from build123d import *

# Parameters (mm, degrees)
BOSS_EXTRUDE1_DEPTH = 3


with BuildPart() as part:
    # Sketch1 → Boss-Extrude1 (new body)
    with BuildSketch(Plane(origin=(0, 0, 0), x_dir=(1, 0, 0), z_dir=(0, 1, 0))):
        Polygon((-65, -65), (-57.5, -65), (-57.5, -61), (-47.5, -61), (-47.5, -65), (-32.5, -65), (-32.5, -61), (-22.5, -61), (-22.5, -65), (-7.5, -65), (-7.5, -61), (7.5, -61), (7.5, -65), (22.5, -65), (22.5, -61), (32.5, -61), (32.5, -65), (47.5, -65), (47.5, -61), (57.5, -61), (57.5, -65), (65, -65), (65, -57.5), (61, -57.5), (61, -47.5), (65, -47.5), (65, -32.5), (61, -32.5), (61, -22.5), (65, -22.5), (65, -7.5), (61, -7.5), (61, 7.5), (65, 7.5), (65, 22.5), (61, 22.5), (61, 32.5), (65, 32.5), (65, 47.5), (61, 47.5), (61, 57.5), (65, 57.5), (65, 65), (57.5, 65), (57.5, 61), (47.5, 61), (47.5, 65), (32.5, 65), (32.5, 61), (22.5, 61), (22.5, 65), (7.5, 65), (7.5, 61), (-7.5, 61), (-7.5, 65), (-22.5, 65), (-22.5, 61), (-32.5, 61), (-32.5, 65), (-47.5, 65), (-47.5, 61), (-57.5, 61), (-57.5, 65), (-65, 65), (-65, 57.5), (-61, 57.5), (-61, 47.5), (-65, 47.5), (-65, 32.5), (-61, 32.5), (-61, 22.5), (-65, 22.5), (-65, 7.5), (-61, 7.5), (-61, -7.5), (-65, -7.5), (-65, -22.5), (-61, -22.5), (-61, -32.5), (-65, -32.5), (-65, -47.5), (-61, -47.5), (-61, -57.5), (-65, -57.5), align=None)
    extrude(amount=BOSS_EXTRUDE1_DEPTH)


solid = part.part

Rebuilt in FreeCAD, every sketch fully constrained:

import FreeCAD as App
import Part
import Sketcher

doc = App.newDocument("Part")
body = doc.addObject("PartDesign::Body", "Body")

sketch1 = doc.addObject("Sketcher::SketchObject", "Sketch")
body.addObject(sketch1)
sketch1.AttachmentSupport = (doc.XZ_Plane, [""])
sketch1.MapMode = "FlatFace"
sketch1.addGeometry(Part.LineSegment(App.Vector(-65, 65, 0), App.Vector(-57.5, 65, 0)), False)
sketch1.addGeometry(Part.LineSegment(App.Vector(-57.5, 65, 0), App.Vector(-57.5, 61, 0)), False)
sketch1.addGeometry(Part.LineSegment(App.Vector(-57.5, 61, 0), App.Vector(-47.5, 61, 0)), False)
sketch1.addGeometry(Part.LineSegment(App.Vector(-47.5, 61, 0), App.Vector(-47.5, 65, 0)), False)
sketch1.addGeometry(Part.LineSegment(App.Vector(-47.5, 65, 0), App.Vector(-32.5, 65, 0)), False)
sketch1.addGeometry(Part.LineSegment(App.Vector(-32.5, 65, 0), App.Vector(-32.5, 61, 0)), False)
sketch1.addGeometry(Part.LineSegment(App.Vector(-32.5, 61, 0), App.Vector(-22.5, 61, 0)), False)
sketch1.addGeometry(Part.LineSegment(App.Vector(-22.5, 61, 0), App.Vector(-22.5, 65, 0)), False)
sketch1.addGeometry(Part.LineSegment(App.Vector(-22.5, 65, 0), App.Vector(-7.5, 65, 0)), False)
sketch1.addGeometry(Part.LineSegment(App.Vector(-7.5, 65, 0), App.Vector(-7.5, 61, 0)), False)
sketch1.addGeometry(Part.LineSegment(App.Vector(-7.5, 61, 0), App.Vector(7.5, 61, 0)), False)
sketch1.addGeometry(Part.LineSegment(App.Vector(7.5, 61, 0), App.Vector(7.5, 65, 0)), False)
sketch1.addGeometry(Part.LineSegment(App.Vector(7.5, 65, 0), App.Vector(22.5, 65, 0)), False)
sketch1.addGeometry(Part.LineSegment(App.Vector(22.5, 65, 0), App.Vector(22.5, 61, 0)), False)
sketch1.addGeometry(Part.LineSegment(App.Vector(22.5, 61, 0), App.Vector(32.5, 61, 0)), False)
sketch1.addGeometry(Part.LineSegment(App.Vector(32.5, 61, 0), App.Vector(32.5, 65, 0)), False)
sketch1.addGeometry(Part.LineSegment(App.Vector(32.5, 65, 0), App.Vector(47.5, 65, 0)), False)
sketch1.addGeometry(Part.LineSegment(App.Vector(47.5, 65, 0), App.Vector(47.5, 61, 0)), False)
sketch1.addGeometry(Part.LineSegment(App.Vector(47.5, 61, 0), App.Vector(57.5, 61, 0)), False)
sketch1.addGeometry(Part.LineSegment(App.Vector(57.5, 61, 0), App.Vector(57.5, 65, 0)), False)
sketch1.addGeometry(Part.LineSegment(App.Vector(57.5, 65, 0), App.Vector(65, 65, 0)), False)
sketch1.addGeometry(Part.LineSegment(App.Vector(65, 65, 0), App.Vector(65, 57.5, 0)), False)
sketch1.addGeometry(Part.LineSegment(App.Vector(65, 57.5, 0), App.Vector(61, 57.5, 0)), False)
sketch1.addGeometry(Part.LineSegment(App.Vector(61, 57.5, 0), App.Vector(61, 47.5, 0)), False)
sketch1.addGeometry(Part.LineSegment(App.Vector(61, 47.5, 0), App.Vector(65, 47.5, 0)), False)
sketch1.addGeometry(Part.LineSegment(App.Vector(65, 47.5, 0), App.Vector(65, 32.5, 0)), False)
sketch1.addGeometry(Part.LineSegment(App.Vector(65, 32.5, 0), App.Vector(61, 32.5, 0)), False)
sketch1.addGeometry(Part.LineSegment(App.Vector(61, 32.5, 0), App.Vector(61, 22.5, 0)), False)
sketch1.addGeometry(Part.LineSegment(App.Vector(61, 22.5, 0), App.Vector(65, 22.5, 0)), False)
sketch1.addGeometry(Part.LineSegment(App.Vector(65, 22.5, 0), App.Vector(65, 7.5, 0)), False)
sketch1.addGeometry(Part.LineSegment(App.Vector(65, 7.5, 0), App.Vector(61, 7.5, 0)), False)
sketch1.addGeometry(Part.LineSegment(App.Vector(61, 7.5, 0), App.Vector(61, -7.5, 0)), False)
sketch1.addGeometry(Part.LineSegment(App.Vector(61, -7.5, 0), App.Vector(65, -7.5, 0)), False)
sketch1.addGeometry(Part.LineSegment(App.Vector(65, -7.5, 0), App.Vector(65, -22.5, 0)), False)
sketch1.addGeometry(Part.LineSegment(App.Vector(65, -22.5, 0), App.Vector(61, -22.5, 0)), False)
sketch1.addGeometry(Part.LineSegment(App.Vector(61, -22.5, 0), App.Vector(61, -32.5, 0)), False)
sketch1.addGeometry(Part.LineSegment(App.Vector(61, -32.5, 0), App.Vector(65, -32.5, 0)), False)
sketch1.addGeometry(Part.LineSegment(App.Vector(65, -32.5, 0), App.Vector(65, -47.5, 0)), False)
sketch1.addGeometry(Part.LineSegment(App.Vector(65, -47.5, 0), App.Vector(61, -47.5, 0)), False)
sketch1.addGeometry(Part.LineSegment(App.Vector(61, -47.5, 0), App.Vector(61, -57.5, 0)), False)
sketch1.addGeometry(Part.LineSegment(App.Vector(61, -57.5, 0), App.Vector(65, -57.5, 0)), False)
sketch1.addGeometry(Part.LineSegment(App.Vector(65, -57.5, 0), App.Vector(65, -65, 0)), False)
sketch1.addGeometry(Part.LineSegment(App.Vector(65, -65, 0), App.Vector(57.5, -65, 0)), False)
sketch1.addGeometry(Part.LineSegment(App.Vector(57.5, -65, 0), App.Vector(57.5, -61, 0)), False)
sketch1.addGeometry(Part.LineSegment(App.Vector(57.5, -61, 0), App.Vector(47.5, -61, 0)), False)
sketch1.addGeometry(Part.LineSegment(App.Vector(47.5, -61, 0), App.Vector(47.5, -65, 0)), False)
sketch1.addGeometry(Part.LineSegment(App.Vector(47.5, -65, 0), App.Vector(32.5, -65, 0)), False)
sketch1.addGeometry(Part.LineSegment(App.Vector(32.5, -65, 0), App.Vector(32.5, -61, 0)), False)
sketch1.addGeometry(Part.LineSegment(App.Vector(32.5, -61, 0), App.Vector(22.5, -61, 0)), False)
sketch1.addGeometry(Part.LineSegment(App.Vector(22.5, -61, 0), App.Vector(22.5, -65, 0)), False)
sketch1.addGeometry(Part.LineSegment(App.Vector(22.5, -65, 0), App.Vector(7.5, -65, 0)), False)
sketch1.addGeometry(Part.LineSegment(App.Vector(7.5, -65, 0), App.Vector(7.5, -61, 0)), False)
sketch1.addGeometry(Part.LineSegment(App.Vector(7.5, -61, 0), App.Vector(-7.5, -61, 0)), False)
sketch1.addGeometry(Part.LineSegment(App.Vector(-7.5, -61, 0), App.Vector(-7.5, -65, 0)), False)
sketch1.addGeometry(Part.LineSegment(App.Vector(-7.5, -65, 0), App.Vector(-22.5, -65, 0)), False)
sketch1.addGeometry(Part.LineSegment(App.Vector(-22.5, -65, 0), App.Vector(-22.5, -61, 0)), False)
sketch1.addGeometry(Part.LineSegment(App.Vector(-22.5, -61, 0), App.Vector(-32.5, -61, 0)), False)
sketch1.addGeometry(Part.LineSegment(App.Vector(-32.5, -61, 0), App.Vector(-32.5, -65, 0)), False)
sketch1.addGeometry(Part.LineSegment(App.Vector(-32.5, -65, 0), App.Vector(-47.5, -65, 0)), False)
sketch1.addGeometry(Part.LineSegment(App.Vector(-47.5, -65, 0), App.Vector(-47.5, -61, 0)), False)
sketch1.addGeometry(Part.LineSegment(App.Vector(-47.5, -61, 0), App.Vector(-57.5, -61, 0)), False)
sketch1.addGeometry(Part.LineSegment(App.Vector(-57.5, -61, 0), App.Vector(-57.5, -65, 0)), False)
sketch1.addGeometry(Part.LineSegment(App.Vector(-57.5, -65, 0), App.Vector(-65, -65, 0)), False)
sketch1.addGeometry(Part.LineSegment(App.Vector(-65, -65, 0), App.Vector(-65, -57.5, 0)), False)
sketch1.addGeometry(Part.LineSegment(App.Vector(-65, -57.5, 0), App.Vector(-61, -57.5, 0)), False)
sketch1.addGeometry(Part.LineSegment(App.Vector(-61, -57.5, 0), App.Vector(-61, -47.5, 0)), False)
sketch1.addGeometry(Part.LineSegment(App.Vector(-61, -47.5, 0), App.Vector(-65, -47.5, 0)), False)
sketch1.addGeometry(Part.LineSegment(App.Vector(-65, -47.5, 0), App.Vector(-65, -32.5, 0)), False)
sketch1.addGeometry(Part.LineSegment(App.Vector(-65, -32.5, 0), App.Vector(-61, -32.5, 0)), False)
sketch1.addGeometry(Part.LineSegment(App.Vector(-61, -32.5, 0), App.Vector(-61, -22.5, 0)), False)
sketch1.addGeometry(Part.LineSegment(App.Vector(-61, -22.5, 0), App.Vector(-65, -22.5, 0)), False)
sketch1.addGeometry(Part.LineSegment(App.Vector(-65, -22.5, 0), App.Vector(-65, -7.5, 0)), False)
sketch1.addGeometry(Part.LineSegment(App.Vector(-65, -7.5, 0), App.Vector(-61, -7.5, 0)), False)
sketch1.addGeometry(Part.LineSegment(App.Vector(-61, -7.5, 0), App.Vector(-61, 7.5, 0)), False)
sketch1.addGeometry(Part.LineSegment(App.Vector(-61, 7.5, 0), App.Vector(-65, 7.5, 0)), False)
sketch1.addGeometry(Part.LineSegment(App.Vector(-65, 7.5, 0), App.Vector(-65, 22.5, 0)), False)
sketch1.addGeometry(Part.LineSegment(App.Vector(-65, 22.5, 0), App.Vector(-61, 22.5, 0)), False)
sketch1.addGeometry(Part.LineSegment(App.Vector(-61, 22.5, 0), App.Vector(-61, 32.5, 0)), False)
sketch1.addGeometry(Part.LineSegment(App.Vector(-61, 32.5, 0), App.Vector(-65, 32.5, 0)), False)
sketch1.addGeometry(Part.LineSegment(App.Vector(-65, 32.5, 0), App.Vector(-65, 47.5, 0)), False)
sketch1.addGeometry(Part.LineSegment(App.Vector(-65, 47.5, 0), App.Vector(-61, 47.5, 0)), False)
sketch1.addGeometry(Part.LineSegment(App.Vector(-61, 47.5, 0), App.Vector(-61, 57.5, 0)), False)
sketch1.addGeometry(Part.LineSegment(App.Vector(-61, 57.5, 0), App.Vector(-65, 57.5, 0)), False)
sketch1.addGeometry(Part.LineSegment(App.Vector(-65, 57.5, 0), App.Vector(-65, 65, 0)), False)
sketch1.addConstraint(Sketcher.Constraint("Coincident", 0, 2, 1, 1))
sketch1.addConstraint(Sketcher.Constraint("Coincident", 1, 2, 2, 1))
sketch1.addConstraint(Sketcher.Constraint("Coincident", 2, 2, 3, 1))
sketch1.addConstraint(Sketcher.Constraint("Coincident", 3, 2, 4, 1))
sketch1.addConstraint(Sketcher.Constraint("Coincident", 4, 2, 5, 1))
sketch1.addConstraint(Sketcher.Constraint("Coincident", 5, 2, 6, 1))
sketch1.addConstraint(Sketcher.Constraint("Coincident", 6, 2, 7, 1))
sketch1.addConstraint(Sketcher.Constraint("Coincident", 7, 2, 8, 1))
sketch1.addConstraint(Sketcher.Constraint("Coincident", 8, 2, 9, 1))
sketch1.addConstraint(Sketcher.Constraint("Coincident", 9, 2, 10, 1))
sketch1.addConstraint(Sketcher.Constraint("Coincident", 10, 2, 11, 1))
sketch1.addConstraint(Sketcher.Constraint("Coincident", 11, 2, 12, 1))
sketch1.addConstraint(Sketcher.Constraint("Coincident", 12, 2, 13, 1))
sketch1.addConstraint(Sketcher.Constraint("Coincident", 13, 2, 14, 1))
sketch1.addConstraint(Sketcher.Constraint("Coincident", 14, 2, 15, 1))
sketch1.addConstraint(Sketcher.Constraint("Coincident", 15, 2, 16, 1))
sketch1.addConstraint(Sketcher.Constraint("Coincident", 16, 2, 17, 1))
sketch1.addConstraint(Sketcher.Constraint("Coincident", 17, 2, 18, 1))
sketch1.addConstraint(Sketcher.Constraint("Coincident", 18, 2, 19, 1))
sketch1.addConstraint(Sketcher.Constraint("Coincident", 19, 2, 20, 1))
sketch1.addConstraint(Sketcher.Constraint("Coincident", 20, 2, 21, 1))
sketch1.addConstraint(Sketcher.Constraint("Coincident", 21, 2, 22, 1))
sketch1.addConstraint(Sketcher.Constraint("Coincident", 22, 2, 23, 1))
sketch1.addConstraint(Sketcher.Constraint("Coincident", 23, 2, 24, 1))
sketch1.addConstraint(Sketcher.Constraint("Coincident", 24, 2, 25, 1))
sketch1.addConstraint(Sketcher.Constraint("Coincident", 25, 2, 26, 1))
sketch1.addConstraint(Sketcher.Constraint("Coincident", 26, 2, 27, 1))
sketch1.addConstraint(Sketcher.Constraint("Coincident", 27, 2, 28, 1))
sketch1.addConstraint(Sketcher.Constraint("Coincident", 28, 2, 29, 1))
sketch1.addConstraint(Sketcher.Constraint("Coincident", 29, 2, 30, 1))
sketch1.addConstraint(Sketcher.Constraint("Coincident", 30, 2, 31, 1))
sketch1.addConstraint(Sketcher.Constraint("Coincident", 31, 2, 32, 1))
sketch1.addConstraint(Sketcher.Constraint("Coincident", 32, 2, 33, 1))
sketch1.addConstraint(Sketcher.Constraint("Coincident", 33, 2, 34, 1))
sketch1.addConstraint(Sketcher.Constraint("Coincident", 34, 2, 35, 1))
sketch1.addConstraint(Sketcher.Constraint("Coincident", 35, 2, 36, 1))
sketch1.addConstraint(Sketcher.Constraint("Coincident", 36, 2, 37, 1))
sketch1.addConstraint(Sketcher.Constraint("Coincident", 37, 2, 38, 1))
sketch1.addConstraint(Sketcher.Constraint("Coincident", 38, 2, 39, 1))
sketch1.addConstraint(Sketcher.Constraint("Coincident", 39, 2, 40, 1))
sketch1.addConstraint(Sketcher.Constraint("Coincident", 40, 2, 41, 1))
sketch1.addConstraint(Sketcher.Constraint("Coincident", 41, 2, 42, 1))
sketch1.addConstraint(Sketcher.Constraint("Coincident", 42, 2, 43, 1))
sketch1.addConstraint(Sketcher.Constraint("Coincident", 43, 2, 44, 1))
sketch1.addConstraint(Sketcher.Constraint("Coincident", 44, 2, 45, 1))
sketch1.addConstraint(Sketcher.Constraint("Coincident", 45, 2, 46, 1))
sketch1.addConstraint(Sketcher.Constraint("Coincident", 46, 2, 47, 1))
sketch1.addConstraint(Sketcher.Constraint("Coincident", 47, 2, 48, 1))
sketch1.addConstraint(Sketcher.Constraint("Coincident", 48, 2, 49, 1))
sketch1.addConstraint(Sketcher.Constraint("Coincident", 49, 2, 50, 1))
sketch1.addConstraint(Sketcher.Constraint("Coincident", 50, 2, 51, 1))
sketch1.addConstraint(Sketcher.Constraint("Coincident", 51, 2, 52, 1))
sketch1.addConstraint(Sketcher.Constraint("Coincident", 52, 2, 53, 1))
sketch1.addConstraint(Sketcher.Constraint("Coincident", 53, 2, 54, 1))
sketch1.addConstraint(Sketcher.Constraint("Coincident", 54, 2, 55, 1))
sketch1.addConstraint(Sketcher.Constraint("Coincident", 55, 2, 56, 1))
sketch1.addConstraint(Sketcher.Constraint("Coincident", 56, 2, 57, 1))
sketch1.addConstraint(Sketcher.Constraint("Coincident", 57, 2, 58, 1))
sketch1.addConstraint(Sketcher.Constraint("Coincident", 58, 2, 59, 1))
sketch1.addConstraint(Sketcher.Constraint("Coincident", 59, 2, 60, 1))
sketch1.addConstraint(Sketcher.Constraint("Coincident", 60, 2, 61, 1))
sketch1.addConstraint(Sketcher.Constraint("Coincident", 61, 2, 62, 1))
sketch1.addConstraint(Sketcher.Constraint("Coincident", 62, 2, 63, 1))
sketch1.addConstraint(Sketcher.Constraint("Coincident", 63, 2, 64, 1))
sketch1.addConstraint(Sketcher.Constraint("Coincident", 64, 2, 65, 1))
sketch1.addConstraint(Sketcher.Constraint("Coincident", 65, 2, 66, 1))
sketch1.addConstraint(Sketcher.Constraint("Coincident", 66, 2, 67, 1))
sketch1.addConstraint(Sketcher.Constraint("Coincident", 67, 2, 68, 1))
sketch1.addConstraint(Sketcher.Constraint("Coincident", 68, 2, 69, 1))
sketch1.addConstraint(Sketcher.Constraint("Coincident", 69, 2, 70, 1))
sketch1.addConstraint(Sketcher.Constraint("Coincident", 70, 2, 71, 1))
sketch1.addConstraint(Sketcher.Constraint("Coincident", 71, 2, 72, 1))
sketch1.addConstraint(Sketcher.Constraint("Coincident", 72, 2, 73, 1))
sketch1.addConstraint(Sketcher.Constraint("Coincident", 73, 2, 74, 1))
sketch1.addConstraint(Sketcher.Constraint("Coincident", 74, 2, 75, 1))
sketch1.addConstraint(Sketcher.Constraint("Coincident", 75, 2, 76, 1))
sketch1.addConstraint(Sketcher.Constraint("Coincident", 76, 2, 77, 1))
sketch1.addConstraint(Sketcher.Constraint("Coincident", 77, 2, 78, 1))
sketch1.addConstraint(Sketcher.Constraint("Coincident", 78, 2, 79, 1))
sketch1.addConstraint(Sketcher.Constraint("Coincident", 79, 2, 80, 1))
sketch1.addConstraint(Sketcher.Constraint("Coincident", 80, 2, 81, 1))
sketch1.addConstraint(Sketcher.Constraint("Coincident", 81, 2, 82, 1))
sketch1.addConstraint(Sketcher.Constraint("Coincident", 82, 2, 83, 1))
sketch1.addConstraint(Sketcher.Constraint("Coincident", 83, 2, 0, 1))
sketch1.addConstraint(Sketcher.Constraint("Horizontal", 0))
sketch1.addConstraint(Sketcher.Constraint("Vertical", 1))
sketch1.addConstraint(Sketcher.Constraint("Horizontal", 2))
sketch1.addConstraint(Sketcher.Constraint("Vertical", 3))
sketch1.addConstraint(Sketcher.Constraint("Horizontal", 4))
sketch1.addConstraint(Sketcher.Constraint("Vertical", 5))
sketch1.addConstraint(Sketcher.Constraint("Horizontal", 6))
sketch1.addConstraint(Sketcher.Constraint("Vertical", 7))
sketch1.addConstraint(Sketcher.Constraint("Horizontal", 8))
sketch1.addConstraint(Sketcher.Constraint("Vertical", 9))
sketch1.addConstraint(Sketcher.Constraint("Horizontal", 10))
sketch1.addConstraint(Sketcher.Constraint("Vertical", 11))
sketch1.addConstraint(Sketcher.Constraint("Horizontal", 12))
sketch1.addConstraint(Sketcher.Constraint("Vertical", 13))
sketch1.addConstraint(Sketcher.Constraint("Horizontal", 14))
sketch1.addConstraint(Sketcher.Constraint("Vertical", 15))
sketch1.addConstraint(Sketcher.Constraint("Horizontal", 16))
sketch1.addConstraint(Sketcher.Constraint("Vertical", 17))
sketch1.addConstraint(Sketcher.Constraint("Horizontal", 18))
sketch1.addConstraint(Sketcher.Constraint("Vertical", 19))
sketch1.addConstraint(Sketcher.Constraint("Horizontal", 20))
sketch1.addConstraint(Sketcher.Constraint("Vertical", 21))
sketch1.addConstraint(Sketcher.Constraint("Horizontal", 22))
sketch1.addConstraint(Sketcher.Constraint("Vertical", 23))
sketch1.addConstraint(Sketcher.Constraint("Horizontal", 24))
sketch1.addConstraint(Sketcher.Constraint("Vertical", 25))
sketch1.addConstraint(Sketcher.Constraint("Horizontal", 26))
sketch1.addConstraint(Sketcher.Constraint("Vertical", 27))
sketch1.addConstraint(Sketcher.Constraint("Horizontal", 28))
sketch1.addConstraint(Sketcher.Constraint("Vertical", 29))
sketch1.addConstraint(Sketcher.Constraint("Horizontal", 30))
sketch1.addConstraint(Sketcher.Constraint("Vertical", 31))
sketch1.addConstraint(Sketcher.Constraint("Horizontal", 32))
sketch1.addConstraint(Sketcher.Constraint("Vertical", 33))
sketch1.addConstraint(Sketcher.Constraint("Horizontal", 34))
sketch1.addConstraint(Sketcher.Constraint("Vertical", 35))
sketch1.addConstraint(Sketcher.Constraint("Horizontal", 36))
sketch1.addConstraint(Sketcher.Constraint("Vertical", 37))
sketch1.addConstraint(Sketcher.Constraint("Horizontal", 38))
sketch1.addConstraint(Sketcher.Constraint("Vertical", 39))
sketch1.addConstraint(Sketcher.Constraint("Horizontal", 40))
sketch1.addConstraint(Sketcher.Constraint("Vertical", 41))
sketch1.addConstraint(Sketcher.Constraint("Horizontal", 42))
sketch1.addConstraint(Sketcher.Constraint("Vertical", 43))
sketch1.addConstraint(Sketcher.Constraint("Horizontal", 44))
sketch1.addConstraint(Sketcher.Constraint("Vertical", 45))
sketch1.addConstraint(Sketcher.Constraint("Horizontal", 46))
sketch1.addConstraint(Sketcher.Constraint("Vertical", 47))
sketch1.addConstraint(Sketcher.Constraint("Horizontal", 48))
sketch1.addConstraint(Sketcher.Constraint("Vertical", 49))
sketch1.addConstraint(Sketcher.Constraint("Horizontal", 50))
sketch1.addConstraint(Sketcher.Constraint("Vertical", 51))
sketch1.addConstraint(Sketcher.Constraint("Horizontal", 52))
sketch1.addConstraint(Sketcher.Constraint("Vertical", 53))
sketch1.addConstraint(Sketcher.Constraint("Horizontal", 54))
sketch1.addConstraint(Sketcher.Constraint("Vertical", 55))
sketch1.addConstraint(Sketcher.Constraint("Horizontal", 56))
sketch1.addConstraint(Sketcher.Constraint("Vertical", 57))
sketch1.addConstraint(Sketcher.Constraint("Horizontal", 58))
sketch1.addConstraint(Sketcher.Constraint("Vertical", 59))
sketch1.addConstraint(Sketcher.Constraint("Horizontal", 60))
sketch1.addConstraint(Sketcher.Constraint("Vertical", 61))
sketch1.addConstraint(Sketcher.Constraint("Horizontal", 62))
sketch1.addConstraint(Sketcher.Constraint("Vertical", 63))
sketch1.addConstraint(Sketcher.Constraint("Horizontal", 64))
sketch1.addConstraint(Sketcher.Constraint("Vertical", 65))
sketch1.addConstraint(Sketcher.Constraint("Horizontal", 66))
sketch1.addConstraint(Sketcher.Constraint("Vertical", 67))
sketch1.addConstraint(Sketcher.Constraint("Horizontal", 68))
sketch1.addConstraint(Sketcher.Constraint("Vertical", 69))
sketch1.addConstraint(Sketcher.Constraint("Horizontal", 70))
sketch1.addConstraint(Sketcher.Constraint("Vertical", 71))
sketch1.addConstraint(Sketcher.Constraint("Horizontal", 72))
sketch1.addConstraint(Sketcher.Constraint("Vertical", 73))
sketch1.addConstraint(Sketcher.Constraint("Horizontal", 74))
sketch1.addConstraint(Sketcher.Constraint("Vertical", 75))
sketch1.addConstraint(Sketcher.Constraint("Horizontal", 76))
sketch1.addConstraint(Sketcher.Constraint("Vertical", 77))
sketch1.addConstraint(Sketcher.Constraint("Horizontal", 78))
sketch1.addConstraint(Sketcher.Constraint("Vertical", 79))
sketch1.addConstraint(Sketcher.Constraint("Horizontal", 80))
sketch1.addConstraint(Sketcher.Constraint("Vertical", 81))
sketch1.addConstraint(Sketcher.Constraint("Horizontal", 82))
sketch1.addConstraint(Sketcher.Constraint("Vertical", 83))
sketch1.addConstraint(Sketcher.Constraint("Symmetric", 0, 2, 42, 2, -1, 1))
sketch1.addConstraint(Sketcher.Constraint("Symmetric", 2, 2, 44, 2, -1, 1))
sketch1.addConstraint(Sketcher.Constraint("Symmetric", 4, 2, 46, 2, -1, 1))
sketch1.addConstraint(Sketcher.Constraint("Symmetric", 6, 2, 48, 2, -1, 1))
sketch1.addConstraint(Sketcher.Constraint("Symmetric", 8, 2, 50, 2, -1, 1))
sketch1.addConstraint(Sketcher.Constraint("Symmetric", 10, 2, 52, 2, -1, 1))
sketch1.addConstraint(Sketcher.Constraint("Symmetric", 12, 2, 54, 2, -1, 1))
sketch1.addConstraint(Sketcher.Constraint("Symmetric", 14, 2, 56, 2, -1, 1))
sketch1.addConstraint(Sketcher.Constraint("Symmetric", 16, 2, 58, 2, -1, 1))
sketch1.addConstraint(Sketcher.Constraint("Symmetric", 18, 2, 60, 2, -1, 1))
sketch1.addConstraint(Sketcher.Constraint("Symmetric", 20, 2, 62, 2, -1, 1))
sketch1.addConstraint(Sketcher.Constraint("Symmetric", 22, 2, 64, 2, -1, 1))
sketch1.addConstraint(Sketcher.Constraint("Symmetric", 24, 2, 66, 2, -1, 1))
sketch1.addConstraint(Sketcher.Constraint("Symmetric", 26, 2, 68, 2, -1, 1))
sketch1.addConstraint(Sketcher.Constraint("Symmetric", 28, 2, 70, 2, -1, 1))
sketch1.addConstraint(Sketcher.Constraint("Symmetric", 30, 2, 72, 2, -1, 1))
sketch1.addConstraint(Sketcher.Constraint("Symmetric", 32, 2, 74, 2, -1, 1))
sketch1.addConstraint(Sketcher.Constraint("Symmetric", 34, 2, 76, 2, -1, 1))
sketch1.addConstraint(Sketcher.Constraint("Symmetric", 36, 2, 78, 2, -1, 1))
sketch1.addConstraint(Sketcher.Constraint("Symmetric", 38, 2, 80, 2, -1, 1))
sketch1.addConstraint(Sketcher.Constraint("Symmetric", 40, 2, 82, 2, -1, 1))
sketch1.addConstraint(Sketcher.Constraint("Symmetric", 8, 2, 11, 2, -2))
sketch1.addConstraint(Sketcher.Constraint("Symmetric", 6, 2, 13, 2, -2))
sketch1.addConstraint(Sketcher.Constraint("Symmetric", 4, 2, 15, 2, -2))
sketch1.addConstraint(Sketcher.Constraint("Symmetric", 2, 2, 17, 2, -2))
sketch1.addConstraint(Sketcher.Constraint("Symmetric", 0, 2, 19, 2, -2))
sketch1.addConstraint(Sketcher.Constraint("Symmetric", 40, 2, 63, 2, -2))
sketch1.addConstraint(Sketcher.Constraint("Symmetric", 38, 2, 65, 2, -2))
sketch1.addConstraint(Sketcher.Constraint("Symmetric", 36, 2, 67, 2, -2))
sketch1.addConstraint(Sketcher.Constraint("Symmetric", 34, 2, 69, 2, -2))
sketch1.addConstraint(Sketcher.Constraint("Symmetric", 32, 2, 71, 2, -2))
sketch1.addConstraint(Sketcher.Constraint("Horizontal", 0, 2, 3, 2))
sketch1.addConstraint(Sketcher.Constraint("Horizontal", 2, 2, 5, 2))
sketch1.addConstraint(Sketcher.Constraint("Horizontal", 4, 2, 7, 2))
sketch1.addConstraint(Sketcher.Constraint("Horizontal", 6, 2, 9, 2))
sketch1.addConstraint(Sketcher.Constraint("Vertical", 21, 2, 24, 2))
sketch1.addConstraint(Sketcher.Constraint("Vertical", 23, 2, 26, 2))
sketch1.addConstraint(Sketcher.Constraint("Vertical", 25, 2, 28, 2))
sketch1.addConstraint(Sketcher.Constraint("Vertical", 27, 2, 30, 2))
sketch1.addConstraint(Sketcher.Constraint("Equal", 2, 6))
sketch1.addConstraint(Sketcher.Constraint("Equal", 4, 8))
sketch1.addConstraint(Sketcher.Constraint("Equal", 8, 10))
sketch1.addConstraint(Sketcher.Constraint("Equal", 82, 1))
sketch1.addConstraint(Sketcher.Constraint("Equal", 62, 21))
sketch1.addConstraint(Sketcher.Constraint("Equal", 60, 23))
sketch1.addConstraint(Sketcher.Constraint("Equal", 58, 25))
sketch1.addConstraint(Sketcher.Constraint("Equal", 23, 27))
sketch1.addConstraint(Sketcher.Constraint("Equal", 25, 29))
sketch1.addConstraint(Sketcher.Constraint("Equal", 29, 31))
sketch1.addConstraint(Sketcher.Constraint("DistanceX", 2, 1, 2, 2, 10.0))
sketch1.addConstraint(Sketcher.Constraint("DistanceX", 4, 1, 4, 2, 15.0))
sketch1.addConstraint(Sketcher.Constraint("DistanceX", 22, 2, 22, 1, 4.0))
sketch1.addConstraint(Sketcher.Constraint("DistanceX", 0, 1, 0, 2, 7.5))
pad1 = doc.addObject("PartDesign::Pad", "Pad")
body.addObject(pad1)
pad1.Profile = sketch1
pad1.Length = 3
pad1.Reversed = True

doc.recompute()
